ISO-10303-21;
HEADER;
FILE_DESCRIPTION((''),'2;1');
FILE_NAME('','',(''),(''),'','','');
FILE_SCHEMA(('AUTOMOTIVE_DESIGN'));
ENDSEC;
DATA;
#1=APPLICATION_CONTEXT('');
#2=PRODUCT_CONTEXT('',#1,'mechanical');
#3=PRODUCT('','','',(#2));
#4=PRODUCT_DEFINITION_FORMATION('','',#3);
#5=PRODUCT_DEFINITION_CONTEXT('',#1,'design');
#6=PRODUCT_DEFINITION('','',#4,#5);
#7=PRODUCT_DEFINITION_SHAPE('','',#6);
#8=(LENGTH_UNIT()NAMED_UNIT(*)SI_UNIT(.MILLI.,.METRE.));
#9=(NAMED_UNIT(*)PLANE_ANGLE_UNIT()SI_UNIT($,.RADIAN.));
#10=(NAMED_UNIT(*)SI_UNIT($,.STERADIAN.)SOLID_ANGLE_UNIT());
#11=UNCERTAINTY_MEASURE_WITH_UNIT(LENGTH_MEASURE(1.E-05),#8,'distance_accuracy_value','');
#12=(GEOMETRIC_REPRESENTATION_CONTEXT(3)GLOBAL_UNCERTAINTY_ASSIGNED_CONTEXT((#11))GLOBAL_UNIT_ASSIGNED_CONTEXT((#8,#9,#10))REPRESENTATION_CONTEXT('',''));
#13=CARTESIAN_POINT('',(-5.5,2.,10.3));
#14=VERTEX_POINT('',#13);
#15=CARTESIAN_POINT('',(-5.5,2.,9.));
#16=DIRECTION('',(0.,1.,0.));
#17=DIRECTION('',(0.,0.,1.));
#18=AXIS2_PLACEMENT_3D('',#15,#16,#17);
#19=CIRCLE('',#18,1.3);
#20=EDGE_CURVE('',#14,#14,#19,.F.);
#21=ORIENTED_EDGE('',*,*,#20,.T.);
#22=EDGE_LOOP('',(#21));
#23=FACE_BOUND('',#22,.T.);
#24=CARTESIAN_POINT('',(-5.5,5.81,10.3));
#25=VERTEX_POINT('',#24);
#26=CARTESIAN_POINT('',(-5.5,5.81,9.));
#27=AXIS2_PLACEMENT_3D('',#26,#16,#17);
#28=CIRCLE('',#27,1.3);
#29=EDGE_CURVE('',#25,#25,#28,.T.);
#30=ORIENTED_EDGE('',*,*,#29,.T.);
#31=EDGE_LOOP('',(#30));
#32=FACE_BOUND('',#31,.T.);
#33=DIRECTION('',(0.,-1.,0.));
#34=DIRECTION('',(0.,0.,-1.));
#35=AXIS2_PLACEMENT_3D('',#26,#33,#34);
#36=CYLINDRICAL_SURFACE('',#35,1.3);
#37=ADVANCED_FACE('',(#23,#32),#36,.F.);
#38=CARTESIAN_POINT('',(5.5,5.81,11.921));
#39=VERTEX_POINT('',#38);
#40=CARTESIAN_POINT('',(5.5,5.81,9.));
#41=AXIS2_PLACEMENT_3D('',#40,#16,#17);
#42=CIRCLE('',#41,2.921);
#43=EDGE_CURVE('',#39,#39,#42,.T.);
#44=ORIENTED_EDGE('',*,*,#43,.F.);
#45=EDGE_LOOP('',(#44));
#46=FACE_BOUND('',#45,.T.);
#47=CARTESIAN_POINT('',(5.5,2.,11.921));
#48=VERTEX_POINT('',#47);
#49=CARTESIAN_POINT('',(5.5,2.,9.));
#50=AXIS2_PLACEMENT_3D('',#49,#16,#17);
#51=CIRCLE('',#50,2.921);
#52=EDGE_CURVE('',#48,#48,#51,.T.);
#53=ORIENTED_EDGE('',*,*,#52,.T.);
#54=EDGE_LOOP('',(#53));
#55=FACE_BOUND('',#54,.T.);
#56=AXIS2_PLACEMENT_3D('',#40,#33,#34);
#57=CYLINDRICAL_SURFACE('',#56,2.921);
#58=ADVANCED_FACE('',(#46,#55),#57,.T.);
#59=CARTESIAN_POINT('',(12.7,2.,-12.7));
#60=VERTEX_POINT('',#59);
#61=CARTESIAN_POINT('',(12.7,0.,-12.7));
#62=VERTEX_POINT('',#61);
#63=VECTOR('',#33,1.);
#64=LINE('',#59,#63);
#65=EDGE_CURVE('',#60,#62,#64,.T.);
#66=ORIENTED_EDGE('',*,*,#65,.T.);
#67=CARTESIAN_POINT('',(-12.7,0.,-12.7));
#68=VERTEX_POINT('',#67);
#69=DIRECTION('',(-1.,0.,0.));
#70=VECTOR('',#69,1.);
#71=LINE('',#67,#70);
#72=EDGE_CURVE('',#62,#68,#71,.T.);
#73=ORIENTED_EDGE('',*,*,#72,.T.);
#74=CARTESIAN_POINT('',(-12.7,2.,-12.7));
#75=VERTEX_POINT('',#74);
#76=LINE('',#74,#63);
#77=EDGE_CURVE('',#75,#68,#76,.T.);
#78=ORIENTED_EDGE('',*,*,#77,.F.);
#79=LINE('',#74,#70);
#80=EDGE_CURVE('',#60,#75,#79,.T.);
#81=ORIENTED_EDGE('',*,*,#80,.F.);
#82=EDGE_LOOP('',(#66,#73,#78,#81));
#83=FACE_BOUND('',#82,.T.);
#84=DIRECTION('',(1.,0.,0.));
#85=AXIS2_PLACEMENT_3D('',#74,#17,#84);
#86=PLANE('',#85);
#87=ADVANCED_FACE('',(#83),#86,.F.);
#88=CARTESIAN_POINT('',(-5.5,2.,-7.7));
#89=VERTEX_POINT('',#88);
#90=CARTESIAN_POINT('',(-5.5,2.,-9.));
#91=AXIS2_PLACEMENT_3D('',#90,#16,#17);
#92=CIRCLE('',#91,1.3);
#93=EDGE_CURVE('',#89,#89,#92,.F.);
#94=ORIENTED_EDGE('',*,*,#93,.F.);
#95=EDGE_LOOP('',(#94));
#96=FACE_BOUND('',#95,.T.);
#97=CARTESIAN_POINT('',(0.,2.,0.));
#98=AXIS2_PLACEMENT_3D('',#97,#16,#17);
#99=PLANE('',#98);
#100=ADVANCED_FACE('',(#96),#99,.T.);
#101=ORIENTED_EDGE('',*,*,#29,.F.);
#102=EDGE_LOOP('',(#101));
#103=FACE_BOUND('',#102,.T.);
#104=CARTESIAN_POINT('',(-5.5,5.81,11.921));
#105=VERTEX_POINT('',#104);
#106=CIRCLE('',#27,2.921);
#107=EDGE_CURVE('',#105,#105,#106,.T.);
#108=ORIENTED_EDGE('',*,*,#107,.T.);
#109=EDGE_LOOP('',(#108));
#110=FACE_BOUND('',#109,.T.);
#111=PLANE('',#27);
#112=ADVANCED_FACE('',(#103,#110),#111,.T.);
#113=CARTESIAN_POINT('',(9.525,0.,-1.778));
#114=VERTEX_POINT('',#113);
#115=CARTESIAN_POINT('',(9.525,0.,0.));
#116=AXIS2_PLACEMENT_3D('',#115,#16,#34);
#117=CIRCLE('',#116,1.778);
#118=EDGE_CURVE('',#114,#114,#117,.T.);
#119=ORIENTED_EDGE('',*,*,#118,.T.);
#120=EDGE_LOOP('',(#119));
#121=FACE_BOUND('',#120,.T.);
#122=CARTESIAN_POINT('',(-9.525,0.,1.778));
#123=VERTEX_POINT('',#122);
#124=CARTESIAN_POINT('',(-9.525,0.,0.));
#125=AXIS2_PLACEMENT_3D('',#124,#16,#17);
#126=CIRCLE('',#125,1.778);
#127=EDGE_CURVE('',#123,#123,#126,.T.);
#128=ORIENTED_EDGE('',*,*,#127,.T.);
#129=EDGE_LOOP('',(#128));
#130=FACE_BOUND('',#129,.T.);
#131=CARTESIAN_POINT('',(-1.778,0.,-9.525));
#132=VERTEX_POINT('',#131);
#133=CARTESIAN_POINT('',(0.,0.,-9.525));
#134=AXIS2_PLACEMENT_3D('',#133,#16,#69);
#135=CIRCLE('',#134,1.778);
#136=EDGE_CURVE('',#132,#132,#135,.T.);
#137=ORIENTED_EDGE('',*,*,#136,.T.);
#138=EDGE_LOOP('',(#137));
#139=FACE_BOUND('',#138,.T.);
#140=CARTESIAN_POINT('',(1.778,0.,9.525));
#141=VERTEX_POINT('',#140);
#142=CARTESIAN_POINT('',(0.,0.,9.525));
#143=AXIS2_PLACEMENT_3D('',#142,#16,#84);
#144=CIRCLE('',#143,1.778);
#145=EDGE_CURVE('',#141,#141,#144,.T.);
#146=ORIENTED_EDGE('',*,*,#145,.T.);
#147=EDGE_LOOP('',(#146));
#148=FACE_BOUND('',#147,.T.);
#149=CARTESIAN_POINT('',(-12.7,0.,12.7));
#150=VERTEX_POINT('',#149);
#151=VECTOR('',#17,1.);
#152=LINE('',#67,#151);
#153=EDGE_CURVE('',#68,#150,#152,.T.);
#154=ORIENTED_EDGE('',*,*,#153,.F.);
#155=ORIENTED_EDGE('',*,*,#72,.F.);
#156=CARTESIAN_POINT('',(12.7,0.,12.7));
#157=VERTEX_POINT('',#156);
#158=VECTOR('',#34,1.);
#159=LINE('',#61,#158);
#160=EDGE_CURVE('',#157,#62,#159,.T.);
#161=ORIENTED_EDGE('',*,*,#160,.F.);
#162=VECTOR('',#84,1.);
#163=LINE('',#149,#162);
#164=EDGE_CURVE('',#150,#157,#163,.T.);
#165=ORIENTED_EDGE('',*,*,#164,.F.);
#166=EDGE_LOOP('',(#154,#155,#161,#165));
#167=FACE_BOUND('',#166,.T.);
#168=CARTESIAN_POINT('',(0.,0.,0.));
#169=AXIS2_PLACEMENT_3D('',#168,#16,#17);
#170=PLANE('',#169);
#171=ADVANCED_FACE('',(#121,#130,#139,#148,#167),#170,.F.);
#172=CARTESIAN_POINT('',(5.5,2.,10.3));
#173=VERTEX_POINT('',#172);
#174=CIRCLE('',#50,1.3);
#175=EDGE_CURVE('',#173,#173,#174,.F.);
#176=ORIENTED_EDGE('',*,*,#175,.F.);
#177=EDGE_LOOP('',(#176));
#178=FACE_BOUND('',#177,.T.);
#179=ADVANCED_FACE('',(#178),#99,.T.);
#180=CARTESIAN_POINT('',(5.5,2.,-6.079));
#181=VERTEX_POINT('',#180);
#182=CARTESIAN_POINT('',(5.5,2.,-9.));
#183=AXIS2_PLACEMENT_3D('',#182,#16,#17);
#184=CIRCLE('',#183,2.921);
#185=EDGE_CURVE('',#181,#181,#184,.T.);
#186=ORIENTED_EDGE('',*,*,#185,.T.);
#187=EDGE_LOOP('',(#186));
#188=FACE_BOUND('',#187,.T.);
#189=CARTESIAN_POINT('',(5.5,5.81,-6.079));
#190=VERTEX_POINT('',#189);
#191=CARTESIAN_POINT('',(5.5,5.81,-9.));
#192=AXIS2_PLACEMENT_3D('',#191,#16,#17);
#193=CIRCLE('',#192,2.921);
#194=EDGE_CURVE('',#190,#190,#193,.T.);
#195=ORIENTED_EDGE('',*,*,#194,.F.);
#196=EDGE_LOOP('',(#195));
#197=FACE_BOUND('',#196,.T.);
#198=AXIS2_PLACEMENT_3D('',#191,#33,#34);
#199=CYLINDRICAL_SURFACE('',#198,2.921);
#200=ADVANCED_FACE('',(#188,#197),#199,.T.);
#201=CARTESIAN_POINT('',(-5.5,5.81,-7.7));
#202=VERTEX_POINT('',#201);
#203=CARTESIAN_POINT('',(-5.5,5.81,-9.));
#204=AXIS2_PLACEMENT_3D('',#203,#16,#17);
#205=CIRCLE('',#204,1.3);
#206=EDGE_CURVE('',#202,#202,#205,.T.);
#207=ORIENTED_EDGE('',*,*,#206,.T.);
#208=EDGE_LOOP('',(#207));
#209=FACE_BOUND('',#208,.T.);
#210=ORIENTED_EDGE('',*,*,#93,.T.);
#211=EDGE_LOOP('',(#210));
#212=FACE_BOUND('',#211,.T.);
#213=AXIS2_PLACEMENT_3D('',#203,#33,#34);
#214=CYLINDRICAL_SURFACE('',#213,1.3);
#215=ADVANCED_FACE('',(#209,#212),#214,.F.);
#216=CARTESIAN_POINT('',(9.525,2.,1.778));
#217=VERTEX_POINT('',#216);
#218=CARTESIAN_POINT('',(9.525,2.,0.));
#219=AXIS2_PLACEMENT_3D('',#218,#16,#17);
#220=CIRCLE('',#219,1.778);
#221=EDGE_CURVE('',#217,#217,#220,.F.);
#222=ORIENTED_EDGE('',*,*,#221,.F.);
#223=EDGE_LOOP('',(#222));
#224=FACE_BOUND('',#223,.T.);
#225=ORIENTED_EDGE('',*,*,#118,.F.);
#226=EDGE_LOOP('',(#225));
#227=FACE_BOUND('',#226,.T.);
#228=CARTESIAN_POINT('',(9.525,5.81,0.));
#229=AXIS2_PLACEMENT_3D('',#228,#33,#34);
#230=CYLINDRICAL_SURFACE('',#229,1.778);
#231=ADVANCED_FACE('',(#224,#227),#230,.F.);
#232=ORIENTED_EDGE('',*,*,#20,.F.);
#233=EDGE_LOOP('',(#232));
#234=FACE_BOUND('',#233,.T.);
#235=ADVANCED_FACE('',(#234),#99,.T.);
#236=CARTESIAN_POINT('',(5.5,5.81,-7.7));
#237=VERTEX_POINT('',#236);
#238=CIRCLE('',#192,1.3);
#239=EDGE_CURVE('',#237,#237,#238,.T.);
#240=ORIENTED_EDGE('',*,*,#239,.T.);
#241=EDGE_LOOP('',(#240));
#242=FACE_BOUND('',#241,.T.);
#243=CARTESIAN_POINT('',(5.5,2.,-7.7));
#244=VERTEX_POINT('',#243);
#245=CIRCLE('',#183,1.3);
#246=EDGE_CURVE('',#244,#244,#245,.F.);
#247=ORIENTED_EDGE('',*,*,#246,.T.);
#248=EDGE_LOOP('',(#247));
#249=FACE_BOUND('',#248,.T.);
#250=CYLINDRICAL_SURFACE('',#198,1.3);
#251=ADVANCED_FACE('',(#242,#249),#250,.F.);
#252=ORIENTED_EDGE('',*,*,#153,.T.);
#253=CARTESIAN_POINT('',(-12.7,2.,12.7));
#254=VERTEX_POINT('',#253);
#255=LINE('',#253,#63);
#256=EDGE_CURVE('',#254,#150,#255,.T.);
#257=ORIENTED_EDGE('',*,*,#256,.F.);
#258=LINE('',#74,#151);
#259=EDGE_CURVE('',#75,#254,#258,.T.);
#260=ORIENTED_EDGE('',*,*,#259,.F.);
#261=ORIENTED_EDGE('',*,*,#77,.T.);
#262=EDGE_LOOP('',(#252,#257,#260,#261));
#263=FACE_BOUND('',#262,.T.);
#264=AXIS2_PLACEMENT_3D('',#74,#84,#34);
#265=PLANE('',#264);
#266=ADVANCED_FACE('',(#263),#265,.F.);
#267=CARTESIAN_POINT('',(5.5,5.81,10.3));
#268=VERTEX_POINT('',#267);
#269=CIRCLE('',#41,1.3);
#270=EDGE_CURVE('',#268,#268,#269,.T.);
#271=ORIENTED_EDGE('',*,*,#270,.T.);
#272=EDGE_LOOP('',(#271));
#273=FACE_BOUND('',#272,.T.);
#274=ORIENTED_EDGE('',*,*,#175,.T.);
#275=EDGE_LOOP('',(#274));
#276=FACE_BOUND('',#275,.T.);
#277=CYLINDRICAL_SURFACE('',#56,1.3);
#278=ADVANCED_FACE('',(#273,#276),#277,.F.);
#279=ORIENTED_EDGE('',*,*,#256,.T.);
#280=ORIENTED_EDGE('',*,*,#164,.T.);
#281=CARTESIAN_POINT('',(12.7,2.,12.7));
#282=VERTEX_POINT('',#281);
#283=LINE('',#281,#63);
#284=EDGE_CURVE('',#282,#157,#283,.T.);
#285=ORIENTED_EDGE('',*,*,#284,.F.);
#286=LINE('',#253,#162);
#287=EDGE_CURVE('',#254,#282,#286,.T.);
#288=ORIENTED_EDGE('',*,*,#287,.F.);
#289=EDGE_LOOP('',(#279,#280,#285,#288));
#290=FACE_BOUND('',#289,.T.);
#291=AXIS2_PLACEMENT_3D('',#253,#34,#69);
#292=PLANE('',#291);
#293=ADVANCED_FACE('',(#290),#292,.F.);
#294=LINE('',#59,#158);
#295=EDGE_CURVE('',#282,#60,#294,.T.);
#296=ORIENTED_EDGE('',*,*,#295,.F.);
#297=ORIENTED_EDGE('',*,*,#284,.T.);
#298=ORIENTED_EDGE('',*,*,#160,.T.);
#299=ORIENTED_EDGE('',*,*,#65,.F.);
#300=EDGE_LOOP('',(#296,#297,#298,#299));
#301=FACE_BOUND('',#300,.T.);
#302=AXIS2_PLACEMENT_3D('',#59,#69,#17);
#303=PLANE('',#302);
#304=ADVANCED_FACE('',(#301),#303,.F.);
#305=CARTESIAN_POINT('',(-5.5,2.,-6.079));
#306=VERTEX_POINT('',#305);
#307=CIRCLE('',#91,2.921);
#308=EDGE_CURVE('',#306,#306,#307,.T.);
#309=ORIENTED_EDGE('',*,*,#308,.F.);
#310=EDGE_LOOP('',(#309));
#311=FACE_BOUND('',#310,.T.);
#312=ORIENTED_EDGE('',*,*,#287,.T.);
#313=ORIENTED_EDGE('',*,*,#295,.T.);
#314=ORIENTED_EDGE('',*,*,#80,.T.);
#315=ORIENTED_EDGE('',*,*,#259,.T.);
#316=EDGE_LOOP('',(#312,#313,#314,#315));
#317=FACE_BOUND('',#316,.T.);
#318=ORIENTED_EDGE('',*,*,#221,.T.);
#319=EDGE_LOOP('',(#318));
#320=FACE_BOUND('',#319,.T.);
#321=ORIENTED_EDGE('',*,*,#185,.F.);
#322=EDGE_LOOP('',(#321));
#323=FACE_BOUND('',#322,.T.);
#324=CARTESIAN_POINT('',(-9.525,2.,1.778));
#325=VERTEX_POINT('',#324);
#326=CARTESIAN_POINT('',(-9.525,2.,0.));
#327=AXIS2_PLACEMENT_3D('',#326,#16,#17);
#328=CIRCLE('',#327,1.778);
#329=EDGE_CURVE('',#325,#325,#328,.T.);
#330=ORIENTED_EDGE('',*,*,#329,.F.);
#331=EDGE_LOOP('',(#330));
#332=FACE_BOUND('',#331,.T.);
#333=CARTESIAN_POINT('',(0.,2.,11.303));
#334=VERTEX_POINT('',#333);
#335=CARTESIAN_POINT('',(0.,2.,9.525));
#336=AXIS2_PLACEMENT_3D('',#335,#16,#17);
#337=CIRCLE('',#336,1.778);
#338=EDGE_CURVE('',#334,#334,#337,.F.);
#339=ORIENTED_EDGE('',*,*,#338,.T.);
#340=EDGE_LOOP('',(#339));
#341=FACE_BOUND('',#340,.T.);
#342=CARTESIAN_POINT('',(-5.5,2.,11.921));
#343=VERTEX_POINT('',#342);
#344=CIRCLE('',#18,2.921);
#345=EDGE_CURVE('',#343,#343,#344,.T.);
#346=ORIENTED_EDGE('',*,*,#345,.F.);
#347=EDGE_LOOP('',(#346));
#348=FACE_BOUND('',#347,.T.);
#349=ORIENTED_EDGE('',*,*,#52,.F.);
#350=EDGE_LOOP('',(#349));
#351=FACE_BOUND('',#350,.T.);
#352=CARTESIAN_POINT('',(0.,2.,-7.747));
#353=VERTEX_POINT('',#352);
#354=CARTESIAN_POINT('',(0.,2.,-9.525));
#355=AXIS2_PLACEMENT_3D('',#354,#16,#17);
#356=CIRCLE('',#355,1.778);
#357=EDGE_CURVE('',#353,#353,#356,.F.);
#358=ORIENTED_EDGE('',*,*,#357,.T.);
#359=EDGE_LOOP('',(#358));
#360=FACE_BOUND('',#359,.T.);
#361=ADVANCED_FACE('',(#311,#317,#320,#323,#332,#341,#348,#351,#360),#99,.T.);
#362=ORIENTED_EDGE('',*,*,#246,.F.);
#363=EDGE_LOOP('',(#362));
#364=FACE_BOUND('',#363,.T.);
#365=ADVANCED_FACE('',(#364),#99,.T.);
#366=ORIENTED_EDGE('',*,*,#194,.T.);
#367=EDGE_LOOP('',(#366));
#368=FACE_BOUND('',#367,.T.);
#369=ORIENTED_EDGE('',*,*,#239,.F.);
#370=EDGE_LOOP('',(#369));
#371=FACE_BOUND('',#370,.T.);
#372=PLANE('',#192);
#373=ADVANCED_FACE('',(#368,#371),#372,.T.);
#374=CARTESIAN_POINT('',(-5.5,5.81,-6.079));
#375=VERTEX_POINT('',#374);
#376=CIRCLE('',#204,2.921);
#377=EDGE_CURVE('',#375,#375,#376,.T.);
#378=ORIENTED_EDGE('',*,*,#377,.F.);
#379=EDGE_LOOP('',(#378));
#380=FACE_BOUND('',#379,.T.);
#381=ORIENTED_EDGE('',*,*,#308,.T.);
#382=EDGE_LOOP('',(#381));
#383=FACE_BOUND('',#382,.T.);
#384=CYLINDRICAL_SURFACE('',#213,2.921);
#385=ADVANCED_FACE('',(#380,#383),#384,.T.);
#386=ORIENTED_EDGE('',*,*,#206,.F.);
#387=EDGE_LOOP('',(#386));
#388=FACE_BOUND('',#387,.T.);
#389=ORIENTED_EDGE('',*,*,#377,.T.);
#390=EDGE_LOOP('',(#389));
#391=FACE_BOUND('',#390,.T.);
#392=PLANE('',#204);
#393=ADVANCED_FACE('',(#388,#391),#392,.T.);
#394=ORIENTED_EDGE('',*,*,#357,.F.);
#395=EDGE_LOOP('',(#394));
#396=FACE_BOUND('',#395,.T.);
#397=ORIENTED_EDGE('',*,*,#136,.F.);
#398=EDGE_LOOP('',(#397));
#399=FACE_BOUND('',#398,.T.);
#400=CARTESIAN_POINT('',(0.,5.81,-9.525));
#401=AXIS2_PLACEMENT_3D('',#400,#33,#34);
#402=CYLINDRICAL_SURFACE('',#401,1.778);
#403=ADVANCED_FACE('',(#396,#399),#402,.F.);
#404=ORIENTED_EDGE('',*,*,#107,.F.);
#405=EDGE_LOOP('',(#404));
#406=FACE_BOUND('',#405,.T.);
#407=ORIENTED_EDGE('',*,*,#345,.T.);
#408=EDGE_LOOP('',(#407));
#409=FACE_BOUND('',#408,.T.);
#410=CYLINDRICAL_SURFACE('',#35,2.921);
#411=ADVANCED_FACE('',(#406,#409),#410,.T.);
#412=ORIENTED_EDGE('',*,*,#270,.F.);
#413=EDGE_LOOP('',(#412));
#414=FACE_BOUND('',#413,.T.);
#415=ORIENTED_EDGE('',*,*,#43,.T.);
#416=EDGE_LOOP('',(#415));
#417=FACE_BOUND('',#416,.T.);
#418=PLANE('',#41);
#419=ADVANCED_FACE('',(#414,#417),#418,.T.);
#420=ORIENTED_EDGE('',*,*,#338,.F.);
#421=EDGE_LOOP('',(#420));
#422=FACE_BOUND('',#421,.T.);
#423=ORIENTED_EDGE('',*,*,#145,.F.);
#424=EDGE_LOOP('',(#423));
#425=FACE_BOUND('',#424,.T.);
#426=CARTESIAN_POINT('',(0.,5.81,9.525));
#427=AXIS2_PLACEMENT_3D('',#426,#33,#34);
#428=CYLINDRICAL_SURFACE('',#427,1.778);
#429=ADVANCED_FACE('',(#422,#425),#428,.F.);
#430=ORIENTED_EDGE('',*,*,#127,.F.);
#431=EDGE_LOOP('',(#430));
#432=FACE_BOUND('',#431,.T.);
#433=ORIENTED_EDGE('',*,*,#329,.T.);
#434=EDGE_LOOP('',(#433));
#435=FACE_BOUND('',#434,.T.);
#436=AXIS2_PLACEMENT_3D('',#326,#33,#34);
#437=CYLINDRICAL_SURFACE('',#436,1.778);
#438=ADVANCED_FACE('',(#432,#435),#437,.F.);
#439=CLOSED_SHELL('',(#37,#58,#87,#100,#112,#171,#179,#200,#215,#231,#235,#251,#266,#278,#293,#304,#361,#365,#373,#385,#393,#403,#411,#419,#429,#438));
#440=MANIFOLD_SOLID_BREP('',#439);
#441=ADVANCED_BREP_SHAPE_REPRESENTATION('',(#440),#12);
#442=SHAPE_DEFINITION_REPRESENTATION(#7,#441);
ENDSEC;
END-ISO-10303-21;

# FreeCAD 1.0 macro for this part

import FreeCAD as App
import Part
import Sketcher

V = App.Vector
Q = App.Units.Quantity

doc = App.newDocument("Part")
body = doc.addObject("PartDesign::Body", "Body")

# Sketch on XZ plane
sketch1 = doc.addObject("Sketcher::SketchObject", "Sketch")
body.addObject(sketch1)
sketch1.AttachmentSupport = (doc.XZ_Plane, [""])
sketch1.MapMode = "FlatFace"
sketch1.addGeometry(Part.LineSegment(V(-13, -13, 0), V(-13, 13, 0)), False)
sketch1.addGeometry(Part.LineSegment(V(-13, 13, 0), V(13, 13, 0)), False)
sketch1.addGeometry(Part.LineSegment(V(13, 13, 0), V(13, -13, 0)), False)
sketch1.addGeometry(Part.LineSegment(V(13, -13, 0), V(-13, -13, 0)), False)
sketch1.addConstraint(Sketcher.Constraint("Coincident", 0, 2, 1, 1))
sketch1.addConstraint(Sketcher.Constraint("Coincident", 1, 2, 2, 1))
sketch1.addConstraint(Sketcher.Constraint("Coincident", 2, 2, 3, 1))
sketch1.addConstraint(Sketcher.Constraint("Coincident", 3, 2, 0, 1))
sketch1.addConstraint(Sketcher.Constraint("Vertical", 0))
sketch1.addConstraint(Sketcher.Constraint("Horizontal", 1))
sketch1.addConstraint(Sketcher.Constraint("Vertical", 2))
sketch1.addConstraint(Sketcher.Constraint("Horizontal", 3))
sketch1.addConstraint(Sketcher.Constraint("Symmetric", 0, 2, 2, 2, -1, 1))
sketch1.addConstraint(Sketcher.Constraint("Equal", 3, 0))
sketch1.addConstraint(Sketcher.Constraint("DistanceX", 1, 1, 1, 2, Q("1 in")))
pad1 = doc.addObject("PartDesign::Pad", "Pad")
body.addObject(pad1)
pad1.Profile = sketch1
pad1.Length = 2
pad1.Reversed = True

# Sketch on XZ plane
sketch2 = doc.addObject("Sketcher::SketchObject", "Sketch001")
body.addObject(sketch2)
sketch2.AttachmentSupport = (doc.XZ_Plane, [""])
sketch2.MapMode = "FlatFace"
sketch2.addGeometry(Part.Circle(V(-9.5, 0, 0), V(0, 0, 1), 1.8), False)
sketch2.addConstraint(Sketcher.Constraint("PointOnObject", 0, 3, -1))
sketch2.addConstraint(Sketcher.Constraint("Diameter", 0, Q("0.14 in")))
sketch2.addConstraint(Sketcher.Constraint("DistanceX", 0, 3, -1, 1, Q("0.375 in")))
pocket1 = doc.addObject("PartDesign::Pocket", "Pocket")
body.addObject(pocket1)
pocket1.Profile = sketch2
pocket1.Type = "ThroughAll"

# Sketch on XZ plane
sketch3 = doc.addObject("Sketcher::SketchObject", "Sketch002")
body.addObject(sketch3)
sketch3.AttachmentSupport = (doc.XZ_Plane, [""])
sketch3.MapMode = "FlatFace"
sketch3.AttachmentOffset = App.Placement(V(0, 0, -2), App.Rotation())
sketch3.addGeometry(Part.Circle(V(-5.5, -9, 0), V(0, 0, 1), 2.9), False)
sketch3.addGeometry(Part.Circle(V(-5.5, -9, 0), V(0, 0, 1), 1.3), False)
sketch3.addGeometry(Part.Circle(V(5.5, -9, 0), V(0, 0, 1), 2.9), False)
sketch3.addGeometry(Part.Circle(V(5.5, -9, 0), V(0, 0, 1), 1.3), False)
sketch3.addGeometry(Part.Circle(V(5.5, 9, 0), V(0, 0, 1), 2.9), False)
sketch3.addGeometry(Part.Circle(V(5.5, 9, 0), V(0, 0, 1), 1.3), False)
sketch3.addGeometry(Part.Circle(V(-5.5, 9, 0), V(0, 0, 1), 2.9), False)
sketch3.addGeometry(Part.Circle(V(-5.5, 9, 0), V(0, 0, 1), 1.3), False)
sketch3.addConstraint(Sketcher.Constraint("Coincident", 1, 3, 0, 3))
sketch3.addConstraint(Sketcher.Constraint("Coincident", 3, 3, 2, 3))
sketch3.addConstraint(Sketcher.Constraint("Coincident", 5, 3, 4, 3))
sketch3.addConstraint(Sketcher.Constraint("Coincident", 7, 3, 6, 3))
sketch3.addConstraint(Sketcher.Constraint("Equal", 0, 2))
sketch3.addConstraint(Sketcher.Constraint("Equal", 1, 3))
sketch3.addConstraint(Sketcher.Constraint("Equal", 2, 4))
sketch3.addConstraint(Sketcher.Constraint("Equal", 3, 5))
sketch3.addConstraint(Sketcher.Constraint("Equal", 4, 6))
sketch3.addConstraint(Sketcher.Constraint("Equal", 5, 7))
sketch3.addConstraint(Sketcher.Constraint("Symmetric", 0, 3, 4, 3, -1, 1))
sketch3.addConstraint(Sketcher.Constraint("Symmetric", 2, 3, 6, 3, -1, 1))
sketch3.addConstraint(Sketcher.Constraint("Symmetric", 0, 3, 2, 3, -2))
sketch3.addConstraint(Sketcher.Constraint("Diameter", 0, Q("0.23 in")))
sketch3.addConstraint(Sketcher.Constraint("Diameter", 1, Q("2.6 mm")))
sketch3.addConstraint(Sketcher.Constraint("DistanceX", 0, 3, -1, 1, Q("5.5 mm")))
sketch3.addConstraint(Sketcher.Constraint("DistanceY", 0, 3, -1, 1, Q("9 mm")))
pad2 = doc.addObject("PartDesign::Pad", "Pad001")
body.addObject(pad2)
pad2.Profile = sketch3
pad2.Length = Q("0.15 in")
pad2.Reversed = True
doc.recompute()

polarpattern = doc.addObject("PartDesign::PolarPattern", "PolarPattern")
body.addObject(polarpattern)
polarpattern.Originals = [pocket1]
polarpattern.Axis = (doc.Y_Axis, [""])
polarpattern.Angle = 360
polarpattern.Occurrences = 4
body.Tip = polarpattern

doc.recompute()
